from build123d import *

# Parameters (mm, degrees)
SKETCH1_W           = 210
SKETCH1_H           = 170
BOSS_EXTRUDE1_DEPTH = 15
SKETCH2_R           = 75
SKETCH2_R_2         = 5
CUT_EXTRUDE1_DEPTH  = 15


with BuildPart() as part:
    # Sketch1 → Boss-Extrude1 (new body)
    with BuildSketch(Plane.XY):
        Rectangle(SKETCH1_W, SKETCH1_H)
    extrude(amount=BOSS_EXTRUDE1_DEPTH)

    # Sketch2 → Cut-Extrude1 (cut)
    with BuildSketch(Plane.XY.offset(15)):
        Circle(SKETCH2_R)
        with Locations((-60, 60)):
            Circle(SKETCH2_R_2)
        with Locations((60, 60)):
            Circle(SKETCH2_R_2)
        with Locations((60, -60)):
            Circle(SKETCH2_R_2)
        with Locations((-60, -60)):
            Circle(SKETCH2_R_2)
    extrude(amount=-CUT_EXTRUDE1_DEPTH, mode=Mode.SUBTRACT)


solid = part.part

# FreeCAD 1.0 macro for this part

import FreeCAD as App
import Part
import Sketcher
Q = App.Units.Quantity


def add_polygon(sketch, points):
    """Adds a closed chain of lines whose ends are joined by coincident constraints."""
    first, n = sketch.GeometryCount, len(points)
    for a, b in zip(points, points[1:] + points[:1]):
        sketch.addGeometry(Part.LineSegment(App.Vector(*a, 0), App.Vector(*b, 0)), False)
    for i in range(n):
        sketch.addConstraint(Sketcher.Constraint("Coincident", first + i, 2, first + (i + 1) % n, 1))

doc = App.newDocument("Part")
body = doc.addObject("PartDesign::Body", "Body")

# Sketch on XY plane
sketch1 = body.newObject("Sketcher::SketchObject", "Sketch")
sketch1.AttachmentSupport = (doc.getObject("XY_Plane"), [""])
sketch1.MapMode = "FlatFace"
add_polygon(sketch1, [(-105, 85), (-105, -85), (105, -85), (105, 85)])  # lines 0-3
sketch1.addConstraint(Sketcher.Constraint("Vertical", 0))
sketch1.addConstraint(Sketcher.Constraint("Horizontal", 1))
sketch1.addConstraint(Sketcher.Constraint("Vertical", 2))
sketch1.addConstraint(Sketcher.Constraint("Horizontal", 3))
sketch1.addConstraint(Sketcher.Constraint("Symmetric", 0, 2, 2, 2, -1, 1))
sketch1.addConstraint(Sketcher.Constraint("DistanceX", 1, 1, 1, 2, Q("210 mm")))
sketch1.addConstraint(Sketcher.Constraint("DistanceY", 0, 2, 0, 1, Q("170 mm")))
pad1 = body.newObject("PartDesign::Pad", "Pad")
pad1.Profile = sketch1
pad1.Length = 15

# Sketch on XY plane
sketch2 = body.newObject("Sketcher::SketchObject", "Sketch001")
sketch2.AttachmentSupport = (doc.getObject("XY_Plane"), [""])
sketch2.MapMode = "FlatFace"
sketch2.AttachmentOffset = App.Placement(App.Vector(0, 0, 15), App.Rotation())
sketch2.addGeometry(Part.Circle(App.Vector(0, 0, 0), App.Vector(0, 0, 1), 75), False)
sketch2.addGeometry(Part.Circle(App.Vector(-60, 60, 0), App.Vector(0, 0, 1), 5), False)
sketch2.addGeometry(Part.Circle(App.Vector(60, 60, 0), App.Vector(0, 0, 1), 5), False)
sketch2.addGeometry(Part.Circle(App.Vector(60, -60, 0), App.Vector(0, 0, 1), 5), False)
sketch2.addGeometry(Part.Circle(App.Vector(-60, -60, 0), App.Vector(0, 0, 1), 5), False)
sketch2.addConstraint(Sketcher.Constraint("Coincident", 0, 3, -1, 1))
sketch2.addConstraint(Sketcher.Constraint("Equal", 1, 2))
sketch2.addConstraint(Sketcher.Constraint("Equal", 2, 3))
sketch2.addConstraint(Sketcher.Constraint("Equal", 3, 4))
sketch2.addConstraint(Sketcher.Constraint("Symmetric", 1, 3, 3, 3, -1, 1))
sketch2.addConstraint(Sketcher.Constraint("Symmetric", 2, 3, 4, 3, -1, 1))
sketch2.addConstraint(Sketcher.Constraint("Symmetric", 1, 3, 2, 3, -2))
sketch2.addConstraint(Sketcher.Constraint("Diameter", 0, Q("150 mm")))
sketch2.addConstraint(Sketcher.Constraint("Diameter", 1, Q("10 mm")))
sketch2.addConstraint(Sketcher.Constraint("DistanceX", 1, 3, -1, 1, Q("60 mm")))
sketch2.addConstraint(Sketcher.Constraint("DistanceY", -1, 1, 1, 3, Q("60 mm")))
pocket1 = body.newObject("PartDesign::Pocket", "Pocket")
pocket1.Profile = sketch2
pocket1.Length = 15

doc.recompute()
